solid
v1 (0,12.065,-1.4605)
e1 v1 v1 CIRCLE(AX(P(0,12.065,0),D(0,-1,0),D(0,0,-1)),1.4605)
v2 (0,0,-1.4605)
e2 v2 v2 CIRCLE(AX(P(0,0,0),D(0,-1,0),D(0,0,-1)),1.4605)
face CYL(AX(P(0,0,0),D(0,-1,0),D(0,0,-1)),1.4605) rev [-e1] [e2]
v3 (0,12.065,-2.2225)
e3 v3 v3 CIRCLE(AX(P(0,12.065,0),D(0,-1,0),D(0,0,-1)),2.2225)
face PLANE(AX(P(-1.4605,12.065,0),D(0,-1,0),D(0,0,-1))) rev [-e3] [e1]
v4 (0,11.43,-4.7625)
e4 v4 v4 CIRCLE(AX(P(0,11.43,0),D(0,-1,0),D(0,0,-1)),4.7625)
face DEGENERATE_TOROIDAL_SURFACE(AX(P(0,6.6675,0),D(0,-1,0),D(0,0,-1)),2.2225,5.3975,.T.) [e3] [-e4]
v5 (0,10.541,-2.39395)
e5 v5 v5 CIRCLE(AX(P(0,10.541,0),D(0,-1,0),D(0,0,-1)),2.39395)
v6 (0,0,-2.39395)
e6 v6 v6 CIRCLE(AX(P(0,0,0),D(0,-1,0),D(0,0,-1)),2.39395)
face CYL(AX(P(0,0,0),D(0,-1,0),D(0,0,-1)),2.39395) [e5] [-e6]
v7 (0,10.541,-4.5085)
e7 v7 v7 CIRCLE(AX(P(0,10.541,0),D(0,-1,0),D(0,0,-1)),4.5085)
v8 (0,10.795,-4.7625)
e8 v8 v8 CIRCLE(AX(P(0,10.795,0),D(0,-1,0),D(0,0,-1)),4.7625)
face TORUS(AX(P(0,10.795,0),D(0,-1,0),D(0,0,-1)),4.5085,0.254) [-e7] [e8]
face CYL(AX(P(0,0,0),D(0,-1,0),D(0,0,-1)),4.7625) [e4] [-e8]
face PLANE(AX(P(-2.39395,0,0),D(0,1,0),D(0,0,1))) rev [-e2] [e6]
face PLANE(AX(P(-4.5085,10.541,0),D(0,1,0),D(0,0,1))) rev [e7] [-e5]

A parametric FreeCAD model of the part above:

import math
import FreeCAD as App
import Part
import Sketcher
from FreeCAD import Vector
Q = App.Units.Quantity

doc = App.newDocument("Part")
body = doc.addObject("PartDesign::Body", "Body")

# Sketch on XY plane
sketch1 = body.newObject("Sketcher::SketchObject", "Sketch")
sketch1.AttachmentSupport = (doc.getObject("XY_Plane"), [""])
sketch1.MapMode = "FlatFace"
sketch1.addGeometry(Part.LineSegment(Vector(-1.46, 0, 0), Vector(-1.46, 12.06, 0)), False)
sketch1.addGeometry(Part.LineSegment(Vector(-1.46, 12.06, 0), Vector(-2.22, 12.06, 0)), False)
sketch1.addGeometry(Part.ArcOfCircle(Part.Circle(Vector(-2.22, 6.67, 0), Vector(0, 0, 1), 5.4), math.radians(90), math.radians(118)), False)
sketch1.addGeometry(Part.LineSegment(Vector(-4.76, 11.43, 0), Vector(-4.76, 10.79, 0)), False)
sketch1.addGeometry(Part.ArcOfCircle(Part.Circle(Vector(-4.51, 10.8, 0), Vector(0, 0, 1), 0.25), math.radians(-180), math.radians(-90)), False)
sketch1.addGeometry(Part.LineSegment(Vector(-4.51, 10.54, 0), Vector(-2.39, 10.54, 0)), False)
sketch1.addGeometry(Part.LineSegment(Vector(-2.39, 10.54, 0), Vector(-2.39, 0, 0)), False)
sketch1.addGeometry(Part.LineSegment(Vector(-2.39, 0, 0), Vector(-1.46, 0, 0)), False)
sketch1.addConstraint(Sketcher.Constraint("Coincident", 0, 2, 1, 1))
sketch1.addConstraint(Sketcher.Constraint("Tangent", 1, 2, 2, 1))
sketch1.addConstraint(Sketcher.Constraint("Coincident", 2, 2, 3, 1))
sketch1.addConstraint(Sketcher.Constraint("Tangent", 3, 2, 4, 1))
sketch1.addConstraint(Sketcher.Constraint("Tangent", 4, 2, 5, 1))
sketch1.addConstraint(Sketcher.Constraint("Coincident", 5, 2, 6, 1))
sketch1.addConstraint(Sketcher.Constraint("Coincident", 6, 2, 7, 1))
sketch1.addConstraint(Sketcher.Constraint("Coincident", 7, 2, 0, 1))
sketch1.addConstraint(Sketcher.Constraint("Vertical", 0))
sketch1.addConstraint(Sketcher.Constraint("Horizontal", 1))
sketch1.addConstraint(Sketcher.Constraint("Vertical", 3))
sketch1.addConstraint(Sketcher.Constraint("Horizontal", 5))
sketch1.addConstraint(Sketcher.Constraint("Vertical", 6))
sketch1.addConstraint(Sketcher.Constraint("Horizontal", 7))
sketch1.addConstraint(Sketcher.Constraint("PointOnObject", 6, 2, -1))
sketch1.addConstraint(Sketcher.Constraint("Radius", 4, Q("0.01 in")))
sketch1.addConstraint(Sketcher.Constraint("DistanceX", 1, 2, 1, 1, Q("0.03 in")))
sketch1.addConstraint(Sketcher.Constraint("Radius", 2, Q("0.2125 in")))
sketch1.addConstraint(Sketcher.Constraint("DistanceX", 2, 2, 1, 2, Q("0.1 in")))
sketch1.addConstraint(Sketcher.Constraint("DistanceY", 0, 1, 0, 2, Q("0.475 in")))
sketch1.addConstraint(Sketcher.Constraint("DistanceY", 3, 2, 3, 1, Q("0.025 in")))
sketch1.addConstraint(Sketcher.Constraint("DistanceX", 2, 2, -1, 1, Q("0.1875 in")))
sketch1.addConstraint(Sketcher.Constraint("DistanceX", 5, 1, 5, 2, 2.11455))
revolution = body.newObject("PartDesign::Revolution", "Revolution")
revolution.Profile = sketch1
revolution.ReferenceAxis = (sketch1, ["V_Axis"])
revolution.Angle = 360

doc.recompute()
